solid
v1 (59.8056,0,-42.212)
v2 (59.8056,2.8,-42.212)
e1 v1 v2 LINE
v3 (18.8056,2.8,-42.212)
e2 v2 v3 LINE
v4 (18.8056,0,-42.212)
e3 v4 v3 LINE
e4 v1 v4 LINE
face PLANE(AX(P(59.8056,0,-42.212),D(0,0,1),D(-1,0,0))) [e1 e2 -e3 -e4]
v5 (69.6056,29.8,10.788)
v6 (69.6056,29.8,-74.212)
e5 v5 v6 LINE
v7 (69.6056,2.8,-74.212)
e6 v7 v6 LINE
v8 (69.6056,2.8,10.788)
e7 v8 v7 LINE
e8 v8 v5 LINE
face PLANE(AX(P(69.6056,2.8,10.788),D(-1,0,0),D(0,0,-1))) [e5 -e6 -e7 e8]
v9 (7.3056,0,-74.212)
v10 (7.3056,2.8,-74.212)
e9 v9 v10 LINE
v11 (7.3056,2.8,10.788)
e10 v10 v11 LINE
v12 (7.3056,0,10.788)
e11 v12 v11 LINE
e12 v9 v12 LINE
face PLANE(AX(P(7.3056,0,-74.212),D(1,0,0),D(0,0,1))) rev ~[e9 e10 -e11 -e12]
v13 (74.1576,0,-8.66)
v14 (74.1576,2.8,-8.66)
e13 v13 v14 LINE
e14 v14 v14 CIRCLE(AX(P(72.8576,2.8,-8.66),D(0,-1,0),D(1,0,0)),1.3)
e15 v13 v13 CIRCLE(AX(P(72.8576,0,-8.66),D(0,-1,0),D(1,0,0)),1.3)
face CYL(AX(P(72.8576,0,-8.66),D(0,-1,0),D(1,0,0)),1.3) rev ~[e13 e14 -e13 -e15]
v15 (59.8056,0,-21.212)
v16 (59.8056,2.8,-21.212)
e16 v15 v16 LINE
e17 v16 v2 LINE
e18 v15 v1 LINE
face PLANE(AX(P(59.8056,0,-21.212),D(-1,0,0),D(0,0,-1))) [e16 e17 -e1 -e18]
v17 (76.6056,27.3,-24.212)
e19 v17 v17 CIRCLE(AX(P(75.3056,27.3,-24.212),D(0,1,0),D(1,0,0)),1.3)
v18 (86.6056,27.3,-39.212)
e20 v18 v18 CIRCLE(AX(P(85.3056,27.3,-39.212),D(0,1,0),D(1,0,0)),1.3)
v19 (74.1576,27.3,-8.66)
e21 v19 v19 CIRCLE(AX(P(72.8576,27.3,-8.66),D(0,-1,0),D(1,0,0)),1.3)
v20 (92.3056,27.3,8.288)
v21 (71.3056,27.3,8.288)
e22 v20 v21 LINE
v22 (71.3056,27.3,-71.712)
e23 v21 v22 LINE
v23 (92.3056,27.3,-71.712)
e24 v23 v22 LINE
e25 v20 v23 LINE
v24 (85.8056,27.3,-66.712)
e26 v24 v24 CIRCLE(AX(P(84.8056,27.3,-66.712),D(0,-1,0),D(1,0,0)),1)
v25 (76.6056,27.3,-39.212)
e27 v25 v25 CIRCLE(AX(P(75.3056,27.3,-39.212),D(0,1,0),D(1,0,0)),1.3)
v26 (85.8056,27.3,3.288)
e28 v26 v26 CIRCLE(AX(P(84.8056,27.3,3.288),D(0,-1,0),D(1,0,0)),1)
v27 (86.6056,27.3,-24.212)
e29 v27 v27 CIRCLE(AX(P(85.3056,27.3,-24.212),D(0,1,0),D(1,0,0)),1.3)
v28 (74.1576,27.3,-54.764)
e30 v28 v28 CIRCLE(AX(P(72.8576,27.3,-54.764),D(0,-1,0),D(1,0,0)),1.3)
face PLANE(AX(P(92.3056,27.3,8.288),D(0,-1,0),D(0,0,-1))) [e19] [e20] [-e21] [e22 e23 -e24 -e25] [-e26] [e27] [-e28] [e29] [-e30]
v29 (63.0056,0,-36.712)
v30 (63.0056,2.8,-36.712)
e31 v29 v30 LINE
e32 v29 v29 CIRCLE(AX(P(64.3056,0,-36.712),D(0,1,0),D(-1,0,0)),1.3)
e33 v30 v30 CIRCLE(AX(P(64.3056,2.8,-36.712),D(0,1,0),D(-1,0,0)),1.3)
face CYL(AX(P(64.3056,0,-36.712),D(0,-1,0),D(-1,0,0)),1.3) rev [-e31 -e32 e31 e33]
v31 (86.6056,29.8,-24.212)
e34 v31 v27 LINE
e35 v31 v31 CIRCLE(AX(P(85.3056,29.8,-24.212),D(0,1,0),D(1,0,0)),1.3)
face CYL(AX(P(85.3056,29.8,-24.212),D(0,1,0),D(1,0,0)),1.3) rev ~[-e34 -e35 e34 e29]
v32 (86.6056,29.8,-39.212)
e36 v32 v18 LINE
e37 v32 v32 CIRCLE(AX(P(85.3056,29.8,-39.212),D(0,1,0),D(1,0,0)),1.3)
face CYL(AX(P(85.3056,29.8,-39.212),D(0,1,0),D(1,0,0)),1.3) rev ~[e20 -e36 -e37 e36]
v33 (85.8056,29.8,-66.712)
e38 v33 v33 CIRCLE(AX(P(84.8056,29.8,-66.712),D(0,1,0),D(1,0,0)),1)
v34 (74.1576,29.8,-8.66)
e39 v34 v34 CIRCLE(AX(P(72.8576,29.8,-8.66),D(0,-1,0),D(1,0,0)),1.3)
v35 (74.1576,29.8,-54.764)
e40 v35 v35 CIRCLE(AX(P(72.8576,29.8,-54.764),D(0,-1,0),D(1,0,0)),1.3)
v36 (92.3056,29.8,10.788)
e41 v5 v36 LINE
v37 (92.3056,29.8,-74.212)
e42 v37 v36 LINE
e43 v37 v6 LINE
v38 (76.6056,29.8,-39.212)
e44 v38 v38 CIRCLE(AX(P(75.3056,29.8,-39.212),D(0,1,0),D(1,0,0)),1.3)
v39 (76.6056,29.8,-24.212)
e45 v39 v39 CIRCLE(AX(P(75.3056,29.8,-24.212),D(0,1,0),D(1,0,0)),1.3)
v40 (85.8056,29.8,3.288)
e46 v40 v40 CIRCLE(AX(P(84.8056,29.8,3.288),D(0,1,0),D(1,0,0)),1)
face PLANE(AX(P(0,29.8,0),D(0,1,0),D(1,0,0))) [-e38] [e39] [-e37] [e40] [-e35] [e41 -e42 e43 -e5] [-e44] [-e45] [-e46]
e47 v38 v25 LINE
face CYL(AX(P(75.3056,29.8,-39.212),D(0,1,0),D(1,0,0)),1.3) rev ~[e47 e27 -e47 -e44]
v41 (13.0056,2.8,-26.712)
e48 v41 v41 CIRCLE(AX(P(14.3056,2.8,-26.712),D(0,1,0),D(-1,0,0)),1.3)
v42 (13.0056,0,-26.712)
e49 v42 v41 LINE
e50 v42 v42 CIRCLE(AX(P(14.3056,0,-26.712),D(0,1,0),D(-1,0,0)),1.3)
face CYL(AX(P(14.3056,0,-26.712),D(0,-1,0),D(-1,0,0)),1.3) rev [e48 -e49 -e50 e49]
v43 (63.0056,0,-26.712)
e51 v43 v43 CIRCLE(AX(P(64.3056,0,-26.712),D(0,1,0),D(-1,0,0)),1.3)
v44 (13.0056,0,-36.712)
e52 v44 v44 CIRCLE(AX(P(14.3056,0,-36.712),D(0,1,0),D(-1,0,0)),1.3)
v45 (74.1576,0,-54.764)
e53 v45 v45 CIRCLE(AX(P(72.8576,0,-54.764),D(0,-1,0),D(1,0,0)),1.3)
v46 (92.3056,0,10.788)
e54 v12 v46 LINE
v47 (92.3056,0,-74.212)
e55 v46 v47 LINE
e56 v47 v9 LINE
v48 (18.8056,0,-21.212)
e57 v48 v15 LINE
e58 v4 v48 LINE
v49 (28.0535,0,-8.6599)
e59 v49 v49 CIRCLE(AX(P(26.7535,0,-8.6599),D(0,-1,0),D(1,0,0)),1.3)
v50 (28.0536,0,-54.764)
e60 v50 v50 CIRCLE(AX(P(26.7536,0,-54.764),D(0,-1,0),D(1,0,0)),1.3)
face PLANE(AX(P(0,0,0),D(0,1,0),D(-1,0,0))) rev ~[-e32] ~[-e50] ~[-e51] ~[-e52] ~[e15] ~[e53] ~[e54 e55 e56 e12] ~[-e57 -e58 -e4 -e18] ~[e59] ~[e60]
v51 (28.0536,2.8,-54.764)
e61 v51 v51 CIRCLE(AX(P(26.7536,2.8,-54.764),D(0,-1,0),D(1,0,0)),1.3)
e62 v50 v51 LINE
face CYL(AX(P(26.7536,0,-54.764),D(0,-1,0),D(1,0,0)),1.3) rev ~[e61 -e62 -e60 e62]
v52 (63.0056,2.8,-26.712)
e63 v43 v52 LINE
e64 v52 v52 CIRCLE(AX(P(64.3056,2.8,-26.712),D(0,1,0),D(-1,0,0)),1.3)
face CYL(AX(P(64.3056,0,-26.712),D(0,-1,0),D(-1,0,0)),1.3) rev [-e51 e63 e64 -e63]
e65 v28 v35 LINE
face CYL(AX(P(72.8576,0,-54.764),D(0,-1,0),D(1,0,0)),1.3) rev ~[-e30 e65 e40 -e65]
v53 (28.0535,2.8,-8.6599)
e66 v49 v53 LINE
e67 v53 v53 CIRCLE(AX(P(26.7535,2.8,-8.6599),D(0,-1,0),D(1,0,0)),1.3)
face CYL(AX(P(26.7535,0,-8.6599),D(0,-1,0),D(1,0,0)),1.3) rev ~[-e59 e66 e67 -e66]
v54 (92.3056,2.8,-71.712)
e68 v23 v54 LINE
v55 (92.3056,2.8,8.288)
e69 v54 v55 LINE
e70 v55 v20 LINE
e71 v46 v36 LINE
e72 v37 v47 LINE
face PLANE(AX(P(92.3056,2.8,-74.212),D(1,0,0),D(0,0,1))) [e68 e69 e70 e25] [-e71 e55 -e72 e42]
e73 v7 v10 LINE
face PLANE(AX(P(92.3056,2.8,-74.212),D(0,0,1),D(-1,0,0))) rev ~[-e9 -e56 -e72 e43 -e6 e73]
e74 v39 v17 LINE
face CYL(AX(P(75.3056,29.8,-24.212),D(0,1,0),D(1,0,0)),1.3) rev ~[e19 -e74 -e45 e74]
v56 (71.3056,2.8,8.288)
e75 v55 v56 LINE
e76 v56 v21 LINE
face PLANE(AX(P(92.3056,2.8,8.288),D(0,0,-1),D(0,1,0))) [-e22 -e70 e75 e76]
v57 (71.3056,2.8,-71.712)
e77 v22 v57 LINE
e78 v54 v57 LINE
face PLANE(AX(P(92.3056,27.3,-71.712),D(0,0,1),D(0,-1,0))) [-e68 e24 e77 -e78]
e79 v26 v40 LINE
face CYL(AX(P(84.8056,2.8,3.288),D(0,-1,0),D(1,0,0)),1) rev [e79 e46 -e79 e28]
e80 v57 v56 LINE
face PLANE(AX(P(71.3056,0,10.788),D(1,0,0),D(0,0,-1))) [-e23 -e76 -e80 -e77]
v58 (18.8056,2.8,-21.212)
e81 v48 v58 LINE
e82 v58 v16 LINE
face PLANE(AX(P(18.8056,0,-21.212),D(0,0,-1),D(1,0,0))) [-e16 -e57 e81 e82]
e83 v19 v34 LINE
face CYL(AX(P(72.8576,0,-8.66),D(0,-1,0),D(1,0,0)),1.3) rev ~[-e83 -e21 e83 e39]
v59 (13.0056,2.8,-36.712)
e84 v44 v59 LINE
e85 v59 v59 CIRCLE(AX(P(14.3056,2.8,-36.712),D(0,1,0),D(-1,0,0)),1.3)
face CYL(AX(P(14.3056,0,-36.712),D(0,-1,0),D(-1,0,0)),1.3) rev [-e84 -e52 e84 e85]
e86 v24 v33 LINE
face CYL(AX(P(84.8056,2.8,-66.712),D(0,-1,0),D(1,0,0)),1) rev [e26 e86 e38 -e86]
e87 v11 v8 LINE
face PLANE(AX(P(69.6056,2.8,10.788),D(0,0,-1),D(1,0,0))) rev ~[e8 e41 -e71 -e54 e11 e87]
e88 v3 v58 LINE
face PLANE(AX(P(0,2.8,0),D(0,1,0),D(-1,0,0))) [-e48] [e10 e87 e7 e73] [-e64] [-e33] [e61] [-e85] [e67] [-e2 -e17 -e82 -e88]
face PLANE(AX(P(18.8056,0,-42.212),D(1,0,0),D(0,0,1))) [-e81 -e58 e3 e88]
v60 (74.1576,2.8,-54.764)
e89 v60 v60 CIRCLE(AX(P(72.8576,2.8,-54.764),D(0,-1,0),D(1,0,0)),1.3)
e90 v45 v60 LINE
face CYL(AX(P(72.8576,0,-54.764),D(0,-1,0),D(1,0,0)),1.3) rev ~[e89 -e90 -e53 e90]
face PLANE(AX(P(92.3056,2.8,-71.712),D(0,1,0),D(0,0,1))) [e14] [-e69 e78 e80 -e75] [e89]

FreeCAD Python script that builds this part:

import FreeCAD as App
import Part
import Sketcher


def add_polygon(sketch, points):
    """Adds a closed chain of lines whose ends are joined by coincident constraints."""
    first, n = sketch.GeometryCount, len(points)
    for a, b in zip(points, points[1:] + points[:1]):
        sketch.addGeometry(Part.LineSegment(App.Vector(*a, 0), App.Vector(*b, 0)), False)
    for i in range(n):
        sketch.addConstraint(Sketcher.Constraint("Coincident", first + i, 2, first + (i + 1) % n, 1))

doc = App.newDocument("Part")
body = doc.addObject("PartDesign::Body", "Body")

# Sketch on XZ plane
sketch1 = doc.addObject("Sketcher::SketchObject", "Sketch")
body.addObject(sketch1)
sketch1.AttachmentSupport = (doc.XZ_Plane, [""])
sketch1.MapMode = "FlatFace"
add_polygon(sketch1, [(7.3, -74.2), (7.3, 10.8), (92.3, 10.8), (92.3, -74.2)])  # lines 0-3
sketch1.addGeometry(Part.Circle(App.Vector(64.3, -36.7, 0), App.Vector(0, 0, 1), 1.3), False)  # 4
sketch1.addGeometry(Part.Circle(App.Vector(14.3, -36.7, 0), App.Vector(0, 0, 1), 1.3), False)  # 5
sketch1.addGeometry(Part.Circle(App.Vector(64.3, -26.7, 0), App.Vector(0, 0, 1), 1.3), False)  # 6
add_polygon(sketch1, [(59.8, -21.2), (18.8, -21.2), (18.8, -42.2), (59.8, -42.2)])  # lines 7-10
sketch1.addGeometry(Part.Circle(App.Vector(14.3, -26.7, 0), App.Vector(0, 0, 1), 1.3), False)  # 11
sketch1.addConstraint([
    Sketcher.Constraint("Vertical", 0),
    Sketcher.Constraint("Horizontal", 1),
    Sketcher.Constraint("Vertical", 2),
    Sketcher.Constraint("Horizontal", 3),
    Sketcher.Constraint("Horizontal", 7),
    Sketcher.Constraint("Vertical", 8),
    Sketcher.Constraint("Horizontal", 9),
    Sketcher.Constraint("Vertical", 10),
    Sketcher.Constraint("Equal", 4, 5),
    Sketcher.Constraint("Equal", 5, 6),
    Sketcher.Constraint("Equal", 6, 11),
    Sketcher.Constraint("Horizontal", 4, 3, 5, 3),
    Sketcher.Constraint("Horizontal", 6, 3, 11, 3),
    Sketcher.Constraint("Vertical", 4, 3, 6, 3),
    Sketcher.Constraint("Vertical", 5, 3, 11, 3),
    Sketcher.Constraint("Equal", 3, 0),
    Sketcher.Constraint("Diameter", 4, 2.6),
    Sketcher.Constraint("DistanceX", 1, 1, 1, 2, 85.0),
    Sketcher.Constraint("DistanceX", 7, 2, 7, 1, 41.0),
    Sketcher.Constraint("DistanceY", 8, 2, 8, 1, 21.0),
    Sketcher.Constraint("DistanceX", 5, 3, 4, 3, 50.0),
    Sketcher.Constraint("DistanceY", 4, 3, 6, 3, 10.0),
    Sketcher.Constraint("DistanceY", 7, 2, 0, 2, 32.0),
    Sketcher.Constraint("DistanceX", 11, 3, 7, 2, 4.5),
    Sketcher.Constraint("DistanceY", 11, 3, 7, 2, 5.5),
    Sketcher.Constraint("DistanceX", 0, 2, 7, 2, 11.5),
    Sketcher.Constraint("DistanceY", 4, 3, -1, 1, 36.712),
    Sketcher.Constraint("DistanceX", -1, 1, 4, 3, 64.3056),
])
pad1 = doc.addObject("PartDesign::Pad", "Pad")
body.addObject(pad1)
pad1.Profile = sketch1
pad1.Length = 2.8
pad1.Reversed = True

# Sketch on XZ plane
sketch2 = doc.addObject("Sketcher::SketchObject", "Sketch001")
body.addObject(sketch2)
sketch2.AttachmentSupport = (doc.XZ_Plane, [""])
sketch2.MapMode = "FlatFace"
sketch2.AttachmentOffset = App.Placement(App.Vector(0, 0, -2.8), App.Rotation())
add_polygon(sketch2, [(69.6, -74.2), (69.6, 10.8), (92.3, 10.8), (92.3, -74.2)])  # lines 0-3
sketch2.addGeometry(Part.Circle(App.Vector(75.3, -24.2, 0), App.Vector(0, 0, 1), 1), False)  # 4
sketch2.addGeometry(Part.Circle(App.Vector(84.8, 3.3, 0), App.Vector(0, 0, 1), 1), False)  # 5
sketch2.addGeometry(Part.Circle(App.Vector(85.3, -24.2, 0), App.Vector(0, 0, 1), 1), False)  # 6
sketch2.addGeometry(Part.Circle(App.Vector(75.3, -39.2, 0), App.Vector(0, 0, 1), 1), False)  # 7
sketch2.addGeometry(Part.Circle(App.Vector(85.3, -39.2, 0), App.Vector(0, 0, 1), 1), False)  # 8
sketch2.addGeometry(Part.Circle(App.Vector(84.8, -66.7, 0), App.Vector(0, 0, 1), 1), False)  # 9
sketch2.addConstraint([
    Sketcher.Constraint("Vertical", 0),
    Sketcher.Constraint("Horizontal", 1),
    Sketcher.Constraint("Vertical", 2),
    Sketcher.Constraint("Horizontal", 3),
    Sketcher.Constraint("Equal", 4, 5),
    Sketcher.Constraint("Equal", 5, 6),
    Sketcher.Constraint("Equal", 6, 7),
    Sketcher.Constraint("Equal", 7, 8),
    Sketcher.Constraint("Equal", 8, 9),
    Sketcher.Constraint("Horizontal", 4, 3, 6, 3),
    Sketcher.Constraint("Horizontal", 7, 3, 8, 3),
    Sketcher.Constraint("Vertical", 4, 3, 7, 3),
    Sketcher.Constraint("Vertical", 6, 3, 8, 3),
    Sketcher.Constraint("Vertical", 5, 3, 9, 3),
    Sketcher.Constraint("Diameter", 4, 2.0),
    Sketcher.Constraint("DistanceY", 0, 1, 0, 2, 85.0),
    Sketcher.Constraint("DistanceX", 1, 1, 1, 2, 22.7),
    Sketcher.Constraint("DistanceX", 4, 3, 6, 3, 10.0),
    Sketcher.Constraint("DistanceY", 7, 3, 4, 3, 15.0),
    Sketcher.Constraint("DistanceY", 9, 3, 5, 3, 70.0),
    Sketcher.Constraint("DistanceY", 4, 3, 0, 2, 35.0),
    Sketcher.Constraint("DistanceX", 6, 3, 1, 2, 7.0),
    Sketcher.Constraint("DistanceX", 4, 3, 5, 3, 9.5),
    Sketcher.Constraint("DistanceY", 4, 3, 5, 3, 27.5),
    Sketcher.Constraint("DistanceY", 4, 3, -1, 1, 24.212),
    Sketcher.Constraint("DistanceX", -1, 1, 4, 3, 75.3056),
])
pad2 = doc.addObject("PartDesign::Pad", "Pad001")
body.addObject(pad2)
pad2.Profile = sketch2
pad2.Length = 27
pad2.Reversed = True

# Sketch on YZ plane
sketch3 = doc.addObject("Sketcher::SketchObject", "Sketch002")
body.addObject(sketch3)
sketch3.AttachmentSupport = (doc.YZ_Plane, [""])
sketch3.MapMode = "FlatFace"
sketch3.AttachmentOffset = App.Placement(App.Vector(0, 0, 92.3056), App.Rotation())
add_polygon(sketch3, [(3, 8), (3, -72), (27, -72), (27, 8)])  # lines 0-3
sketch3.addConstraint([
    Sketcher.Constraint("Vertical", 0),
    Sketcher.Constraint("Horizontal", 1),
    Sketcher.Constraint("Vertical", 2),
    Sketcher.Constraint("Horizontal", 3),
    Sketcher.Constraint("DistanceX", -1, 1, 0, 2, 2.8),
    Sketcher.Constraint("DistanceY", 0, 2, 0, 1, 80.0),
    Sketcher.Constraint("DistanceX", 1, 1, 1, 2, 24.5),
    Sketcher.Constraint("DistanceY", 0, 2, -1, 1, 71.712),
])
pocket1 = doc.addObject("PartDesign::Pocket", "Pocket")
body.addObject(pocket1)
pocket1.Profile = sketch3
pocket1.Length = 21

# Sketch on XZ plane
sketch4 = doc.addObject("Sketcher::SketchObject", "Sketch003")
body.addObject(sketch4)
sketch4.AttachmentSupport = (doc.XZ_Plane, [""])
sketch4.MapMode = "FlatFace"
sketch4.addGeometry([
    Part.Circle(App.Vector(26.8, -8.7, 0), App.Vector(0, 0, 1), 1.3),
    Part.Circle(App.Vector(72.9, -8.7, 0), App.Vector(0, 0, 1), 1.3),
    Part.Circle(App.Vector(26.8, -54.8, 0), App.Vector(0, 0, 1), 1.3),
    Part.Circle(App.Vector(72.9, -54.8, 0), App.Vector(0, 0, 1), 1.3),
], False)
sketch4.addConstraint([
    Sketcher.Constraint("Equal", 0, 1),
    Sketcher.Constraint("Equal", 1, 2),
    Sketcher.Constraint("Equal", 2, 3),
    Sketcher.Constraint("Horizontal", 0, 3, 1, 3),
    Sketcher.Constraint("Horizontal", 2, 3, 3, 3),
    Sketcher.Constraint("Vertical", 0, 3, 2, 3),
    Sketcher.Constraint("Vertical", 1, 3, 3, 3),
    Sketcher.Constraint("Diameter", 0, 2.6),
    Sketcher.Constraint("DistanceX", 0, 3, 1, 3, 46.104),
    Sketcher.Constraint("DistanceY", 2, 3, 0, 3, 46.104),
    Sketcher.Constraint("DistanceY", 0, 3, -1, 1, 8.66),
    Sketcher.Constraint("DistanceX", -1, 1, 0, 3, 26.7535),
])
pocket2 = doc.addObject("PartDesign::Pocket", "Pocket001")
body.addObject(pocket2)
pocket2.Profile = sketch4
pocket2.Length = 100

# Sketch on XZ plane
sketch5 = doc.addObject("Sketcher::SketchObject", "Sketch004")
body.addObject(sketch5)
sketch5.AttachmentSupport = (doc.XZ_Plane, [""])
sketch5.MapMode = "FlatFace"
sketch5.AttachmentOffset = App.Placement(App.Vector(0, 0, -29.8), App.Rotation())
sketch5.addGeometry([
    Part.Circle(App.Vector(75.3, -39.2, 0), App.Vector(0, 0, 1), 1.3),
    Part.Circle(App.Vector(85.3, -39.2, 0), App.Vector(0, 0, 1), 1.3),
    Part.Circle(App.Vector(75.3, -24.2, 0), App.Vector(0, 0, 1), 1.3),
    Part.Circle(App.Vector(85.3, -24.2, 0), App.Vector(0, 0, 1), 1.3),
], False)
sketch5.addConstraint([
    Sketcher.Constraint("Equal", 0, 1),
    Sketcher.Constraint("Equal", 1, 2),
    Sketcher.Constraint("Equal", 2, 3),
    Sketcher.Constraint("Horizontal", 0, 3, 1, 3),
    Sketcher.Constraint("Horizontal", 2, 3, 3, 3),
    Sketcher.Constraint("Vertical", 0, 3, 2, 3),
    Sketcher.Constraint("Vertical", 1, 3, 3, 3),
    Sketcher.Constraint("Diameter", 0, 2.6),
    Sketcher.Constraint("DistanceX", 0, 3, 1, 3, 10.0),
    Sketcher.Constraint("DistanceY", 0, 3, 2, 3, 15.0),
    Sketcher.Constraint("DistanceY", 0, 3, -1, 1, 39.212),
    Sketcher.Constraint("DistanceX", -1, 1, 0, 3, 75.3056),
])
pocket3 = doc.addObject("PartDesign::Pocket", "Pocket002")
body.addObject(pocket3)
pocket3.Profile = sketch5
pocket3.Length = 10
pocket3.Reversed = True

doc.recompute()
